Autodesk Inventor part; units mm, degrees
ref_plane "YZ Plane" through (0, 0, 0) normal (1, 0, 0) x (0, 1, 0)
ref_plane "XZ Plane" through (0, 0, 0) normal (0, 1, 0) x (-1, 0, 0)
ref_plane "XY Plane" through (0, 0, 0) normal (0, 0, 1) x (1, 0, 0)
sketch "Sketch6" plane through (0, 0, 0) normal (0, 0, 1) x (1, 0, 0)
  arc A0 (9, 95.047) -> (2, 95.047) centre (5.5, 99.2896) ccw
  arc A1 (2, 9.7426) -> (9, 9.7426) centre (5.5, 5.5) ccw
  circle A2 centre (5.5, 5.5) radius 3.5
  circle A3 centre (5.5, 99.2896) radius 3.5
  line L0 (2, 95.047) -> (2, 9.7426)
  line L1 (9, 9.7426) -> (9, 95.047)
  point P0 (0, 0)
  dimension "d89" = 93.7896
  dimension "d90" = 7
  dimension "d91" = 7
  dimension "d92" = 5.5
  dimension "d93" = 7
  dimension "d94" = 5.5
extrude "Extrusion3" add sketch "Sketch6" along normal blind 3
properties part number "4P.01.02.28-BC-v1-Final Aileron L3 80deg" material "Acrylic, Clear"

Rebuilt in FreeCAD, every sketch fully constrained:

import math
import FreeCAD as App
import Part
import Sketcher
from FreeCAD import Vector

doc = App.newDocument("Part")
body = doc.addObject("PartDesign::Body", "Body")

# Sketch on XY plane
sketch1 = doc.addObject("Sketcher::SketchObject", "Sketch")
body.addObject(sketch1)
sketch1.AttachmentSupport = (doc.XY_Plane, [""])
sketch1.MapMode = "FlatFace"
sketch1.addGeometry([
    Part.LineSegment(Vector(9, 9.7, 0), Vector(9, 95, 0)),  # 0
    Part.ArcOfCircle(Part.Circle(Vector(5.5, 99.3, 0), Vector(0, 0, 1), 5.5), math.radians(-50), math.radians(230)),  # 1
    Part.LineSegment(Vector(2, 95, 0), Vector(2, 9.7, 0)),  # 2
    Part.ArcOfCircle(Part.Circle(Vector(5.5, 5.5, 0), Vector(0, 0, 1), 5.5), math.radians(130), math.radians(410)),  # 3
    Part.Circle(Vector(5.5, 5.5, 0), Vector(0, 0, 1), 3.5),  # 4
    Part.Circle(Vector(5.5, 99.3, 0), Vector(0, 0, 1), 3.5),  # 5
], False)
sketch1.addConstraint([
    Sketcher.Constraint("Coincident", 0, 2, 1, 1),
    Sketcher.Constraint("Coincident", 1, 2, 2, 1),
    Sketcher.Constraint("Coincident", 2, 2, 3, 1),
    Sketcher.Constraint("Coincident", 3, 2, 0, 1),
    Sketcher.Constraint("Vertical", 0),
    Sketcher.Constraint("Vertical", 2),
    Sketcher.Constraint("Coincident", 4, 3, 3, 3),
    Sketcher.Constraint("Coincident", 5, 3, 1, 3),
    Sketcher.Constraint("Equal", 1, 3),
    Sketcher.Constraint("Equal", 4, 5),
    Sketcher.Constraint("Horizontal", 0, 2, 1, 2),
    Sketcher.Constraint("Horizontal", 2, 2, 3, 2),
    Sketcher.Constraint("Diameter", 4, 7.0),
    Sketcher.Constraint("Radius", 1, 5.5),
    Sketcher.Constraint("DistanceX", 1, 2, 0, 2, 7.0),
    Sketcher.Constraint("DistanceX", -1, 1, 1, 3, 5.5),
    Sketcher.Constraint("DistanceY", -1, 1, 3, 3, 5.5),
    Sketcher.Constraint("DistanceY", 3, 3, 1, 3, 93.7896),
])
pad1 = doc.addObject("PartDesign::Pad", "Pad")
body.addObject(pad1)
pad1.Profile = sketch1
pad1.Length = 3

doc.recompute()
